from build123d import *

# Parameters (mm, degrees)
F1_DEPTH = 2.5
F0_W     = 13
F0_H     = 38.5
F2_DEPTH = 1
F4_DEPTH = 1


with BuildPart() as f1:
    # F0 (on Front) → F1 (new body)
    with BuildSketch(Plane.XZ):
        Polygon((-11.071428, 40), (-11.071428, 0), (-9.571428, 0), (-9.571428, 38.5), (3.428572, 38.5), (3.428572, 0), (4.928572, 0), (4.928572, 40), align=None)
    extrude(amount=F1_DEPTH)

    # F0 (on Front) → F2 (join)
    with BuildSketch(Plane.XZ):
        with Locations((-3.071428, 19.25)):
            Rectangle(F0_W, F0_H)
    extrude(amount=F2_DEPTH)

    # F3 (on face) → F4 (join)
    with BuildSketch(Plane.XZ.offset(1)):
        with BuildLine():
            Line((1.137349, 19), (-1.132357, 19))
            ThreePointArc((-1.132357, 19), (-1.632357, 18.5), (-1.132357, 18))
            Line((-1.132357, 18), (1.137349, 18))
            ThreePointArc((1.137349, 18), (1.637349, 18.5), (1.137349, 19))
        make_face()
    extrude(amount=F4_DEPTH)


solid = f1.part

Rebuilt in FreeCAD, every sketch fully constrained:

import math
import FreeCAD as App
import Part
import Sketcher

V = App.Vector
Q = App.Units.Quantity

doc = App.newDocument("Part")
body = doc.addObject("PartDesign::Body", "Body")

# Sketch on XZ plane
sketch1 = body.newObject("Sketcher::SketchObject", "Sketch")
sketch1.AttachmentSupport = (doc.getObject("XZ_Plane"), [""])
sketch1.MapMode = "FlatFace"
sketch1.addGeometry(Part.LineSegment(V(-11.1, 40, 0), V(-11.1, 0, 0)), False)
sketch1.addGeometry(Part.LineSegment(V(-11.1, 0, 0), V(-9.6, 0, 0)), False)
sketch1.addGeometry(Part.LineSegment(V(-9.6, 0, 0), V(-9.6, 38.5, 0)), False)
sketch1.addGeometry(Part.LineSegment(V(-9.6, 38.5, 0), V(3.4, 38.5, 0)), False)
sketch1.addGeometry(Part.LineSegment(V(3.4, 38.5, 0), V(3.4, 0, 0)), False)
sketch1.addGeometry(Part.LineSegment(V(3.4, 0, 0), V(4.9, 0, 0)), False)
sketch1.addGeometry(Part.LineSegment(V(4.9, 0, 0), V(4.9, 40, 0)), False)
sketch1.addGeometry(Part.LineSegment(V(4.9, 40, 0), V(-11.1, 40, 0)), False)
sketch1.addConstraint(Sketcher.Constraint("Coincident", 0, 2, 1, 1))
sketch1.addConstraint(Sketcher.Constraint("Coincident", 1, 2, 2, 1))
sketch1.addConstraint(Sketcher.Constraint("Coincident", 2, 2, 3, 1))
sketch1.addConstraint(Sketcher.Constraint("Coincident", 3, 2, 4, 1))
sketch1.addConstraint(Sketcher.Constraint("Coincident", 4, 2, 5, 1))
sketch1.addConstraint(Sketcher.Constraint("Coincident", 5, 2, 6, 1))
sketch1.addConstraint(Sketcher.Constraint("Coincident", 6, 2, 7, 1))
sketch1.addConstraint(Sketcher.Constraint("Coincident", 7, 2, 0, 1))
sketch1.addConstraint(Sketcher.Constraint("Vertical", 0))
sketch1.addConstraint(Sketcher.Constraint("Horizontal", 1))
sketch1.addConstraint(Sketcher.Constraint("Vertical", 2))
sketch1.addConstraint(Sketcher.Constraint("Horizontal", 3))
sketch1.addConstraint(Sketcher.Constraint("Vertical", 4))
sketch1.addConstraint(Sketcher.Constraint("Horizontal", 5))
sketch1.addConstraint(Sketcher.Constraint("Vertical", 6))
sketch1.addConstraint(Sketcher.Constraint("Horizontal", 7))
sketch1.addConstraint(Sketcher.Constraint("PointOnObject", 0, 2, -1))
sketch1.addConstraint(Sketcher.Constraint("PointOnObject", 4, 2, -1))
sketch1.addConstraint(Sketcher.Constraint("Equal", 1, 5))
sketch1.addConstraint(Sketcher.Constraint("DistanceX", 3, 1, 3, 2, Q("13 mm")))
sketch1.addConstraint(Sketcher.Constraint("DistanceX", 7, 2, 7, 1, Q("16 mm")))
sketch1.addConstraint(Sketcher.Constraint("DistanceY", 0, 2, 0, 1, Q("40 mm")))
sketch1.addConstraint(Sketcher.Constraint("DistanceY", 2, 1, 2, 2, Q("38.5 mm")))
sketch1.addConstraint(Sketcher.Constraint("DistanceX", -1, 1, 3, 2, Q("3.428572 mm")))
pad1 = body.newObject("PartDesign::Pad", "Pad")
pad1.Profile = sketch1
pad1.Length = 2.5

# Sketch on XZ plane
sketch2 = body.newObject("Sketcher::SketchObject", "Sketch001")
sketch2.AttachmentSupport = (doc.getObject("XZ_Plane"), [""])
sketch2.MapMode = "FlatFace"
sketch2.addGeometry(Part.LineSegment(V(-10, 38, 0), V(-10, 0, 0)), False)
sketch2.addGeometry(Part.LineSegment(V(-10, 0, 0), V(3, 0, 0)), False)
sketch2.addGeometry(Part.LineSegment(V(3, 0, 0), V(3, 38, 0)), False)
sketch2.addGeometry(Part.LineSegment(V(3, 38, 0), V(-10, 38, 0)), False)
sketch2.addConstraint(Sketcher.Constraint("Coincident", 0, 2, 1, 1))
sketch2.addConstraint(Sketcher.Constraint("Coincident", 1, 2, 2, 1))
sketch2.addConstraint(Sketcher.Constraint("Coincident", 2, 2, 3, 1))
sketch2.addConstraint(Sketcher.Constraint("Coincident", 3, 2, 0, 1))
sketch2.addConstraint(Sketcher.Constraint("Vertical", 0))
sketch2.addConstraint(Sketcher.Constraint("Horizontal", 1))
sketch2.addConstraint(Sketcher.Constraint("Vertical", 2))
sketch2.addConstraint(Sketcher.Constraint("Horizontal", 3))
sketch2.addConstraint(Sketcher.Constraint("PointOnObject", 0, 2, -1))
sketch2.addConstraint(Sketcher.Constraint("DistanceX", 1, 1, 1, 2, Q("13 mm")))
sketch2.addConstraint(Sketcher.Constraint("DistanceY", 0, 2, 0, 1, Q("38.5 mm")))
sketch2.addConstraint(Sketcher.Constraint("DistanceX", -1, 1, 1, 2, Q("3.428572 mm")))
pad2 = body.newObject("PartDesign::Pad", "Pad001")
pad2.Profile = sketch2
pad2.Length = 1

# Sketch on XZ plane
sketch3 = body.newObject("Sketcher::SketchObject", "Sketch002")
sketch3.AttachmentSupport = (doc.getObject("XZ_Plane"), [""])
sketch3.MapMode = "FlatFace"
sketch3.AttachmentOffset = App.Placement(V(0, 0, 1), App.Rotation())
sketch3.addGeometry(Part.LineSegment(V(1.1, 19, 0), V(-1.1, 19, 0)), False)
sketch3.addGeometry(Part.ArcOfCircle(Part.Circle(V(-1.1, 18.5, 0), V(0, 0, 1), 0.5), math.radians(90), math.radians(270)), False)
sketch3.addGeometry(Part.LineSegment(V(-1.1, 18, 0), V(1.1, 18, 0)), False)
sketch3.addGeometry(Part.ArcOfCircle(Part.Circle(V(1.1, 18.5, 0), V(0, 0, 1), 0.5), math.radians(-90), math.radians(90)), False)
sketch3.addConstraint(Sketcher.Constraint("Tangent", 0, 2, 1, 1))
sketch3.addConstraint(Sketcher.Constraint("Tangent", 1, 2, 2, 1))
sketch3.addConstraint(Sketcher.Constraint("Tangent", 2, 2, 3, 1))
sketch3.addConstraint(Sketcher.Constraint("Tangent", 3, 2, 0, 1))
sketch3.addConstraint(Sketcher.Constraint("Horizontal", 0))
sketch3.addConstraint(Sketcher.Constraint("Horizontal", 2))
sketch3.addConstraint(Sketcher.Constraint("Radius", 1, Q("0.5 mm")))
sketch3.addConstraint(Sketcher.Constraint("DistanceY", -1, 1, 0, 2, Q("19 mm")))
sketch3.addConstraint(Sketcher.Constraint("DistanceX", 0, 2, 0, 1, Q("2.269706 mm")))
sketch3.addConstraint(Sketcher.Constraint("DistanceX", -1, 1, 3, 3, Q("1.137349 mm")))
pad3 = body.newObject("PartDesign::Pad", "Pad002")
pad3.Profile = sketch3
pad3.Length = 1

doc.recompute()
